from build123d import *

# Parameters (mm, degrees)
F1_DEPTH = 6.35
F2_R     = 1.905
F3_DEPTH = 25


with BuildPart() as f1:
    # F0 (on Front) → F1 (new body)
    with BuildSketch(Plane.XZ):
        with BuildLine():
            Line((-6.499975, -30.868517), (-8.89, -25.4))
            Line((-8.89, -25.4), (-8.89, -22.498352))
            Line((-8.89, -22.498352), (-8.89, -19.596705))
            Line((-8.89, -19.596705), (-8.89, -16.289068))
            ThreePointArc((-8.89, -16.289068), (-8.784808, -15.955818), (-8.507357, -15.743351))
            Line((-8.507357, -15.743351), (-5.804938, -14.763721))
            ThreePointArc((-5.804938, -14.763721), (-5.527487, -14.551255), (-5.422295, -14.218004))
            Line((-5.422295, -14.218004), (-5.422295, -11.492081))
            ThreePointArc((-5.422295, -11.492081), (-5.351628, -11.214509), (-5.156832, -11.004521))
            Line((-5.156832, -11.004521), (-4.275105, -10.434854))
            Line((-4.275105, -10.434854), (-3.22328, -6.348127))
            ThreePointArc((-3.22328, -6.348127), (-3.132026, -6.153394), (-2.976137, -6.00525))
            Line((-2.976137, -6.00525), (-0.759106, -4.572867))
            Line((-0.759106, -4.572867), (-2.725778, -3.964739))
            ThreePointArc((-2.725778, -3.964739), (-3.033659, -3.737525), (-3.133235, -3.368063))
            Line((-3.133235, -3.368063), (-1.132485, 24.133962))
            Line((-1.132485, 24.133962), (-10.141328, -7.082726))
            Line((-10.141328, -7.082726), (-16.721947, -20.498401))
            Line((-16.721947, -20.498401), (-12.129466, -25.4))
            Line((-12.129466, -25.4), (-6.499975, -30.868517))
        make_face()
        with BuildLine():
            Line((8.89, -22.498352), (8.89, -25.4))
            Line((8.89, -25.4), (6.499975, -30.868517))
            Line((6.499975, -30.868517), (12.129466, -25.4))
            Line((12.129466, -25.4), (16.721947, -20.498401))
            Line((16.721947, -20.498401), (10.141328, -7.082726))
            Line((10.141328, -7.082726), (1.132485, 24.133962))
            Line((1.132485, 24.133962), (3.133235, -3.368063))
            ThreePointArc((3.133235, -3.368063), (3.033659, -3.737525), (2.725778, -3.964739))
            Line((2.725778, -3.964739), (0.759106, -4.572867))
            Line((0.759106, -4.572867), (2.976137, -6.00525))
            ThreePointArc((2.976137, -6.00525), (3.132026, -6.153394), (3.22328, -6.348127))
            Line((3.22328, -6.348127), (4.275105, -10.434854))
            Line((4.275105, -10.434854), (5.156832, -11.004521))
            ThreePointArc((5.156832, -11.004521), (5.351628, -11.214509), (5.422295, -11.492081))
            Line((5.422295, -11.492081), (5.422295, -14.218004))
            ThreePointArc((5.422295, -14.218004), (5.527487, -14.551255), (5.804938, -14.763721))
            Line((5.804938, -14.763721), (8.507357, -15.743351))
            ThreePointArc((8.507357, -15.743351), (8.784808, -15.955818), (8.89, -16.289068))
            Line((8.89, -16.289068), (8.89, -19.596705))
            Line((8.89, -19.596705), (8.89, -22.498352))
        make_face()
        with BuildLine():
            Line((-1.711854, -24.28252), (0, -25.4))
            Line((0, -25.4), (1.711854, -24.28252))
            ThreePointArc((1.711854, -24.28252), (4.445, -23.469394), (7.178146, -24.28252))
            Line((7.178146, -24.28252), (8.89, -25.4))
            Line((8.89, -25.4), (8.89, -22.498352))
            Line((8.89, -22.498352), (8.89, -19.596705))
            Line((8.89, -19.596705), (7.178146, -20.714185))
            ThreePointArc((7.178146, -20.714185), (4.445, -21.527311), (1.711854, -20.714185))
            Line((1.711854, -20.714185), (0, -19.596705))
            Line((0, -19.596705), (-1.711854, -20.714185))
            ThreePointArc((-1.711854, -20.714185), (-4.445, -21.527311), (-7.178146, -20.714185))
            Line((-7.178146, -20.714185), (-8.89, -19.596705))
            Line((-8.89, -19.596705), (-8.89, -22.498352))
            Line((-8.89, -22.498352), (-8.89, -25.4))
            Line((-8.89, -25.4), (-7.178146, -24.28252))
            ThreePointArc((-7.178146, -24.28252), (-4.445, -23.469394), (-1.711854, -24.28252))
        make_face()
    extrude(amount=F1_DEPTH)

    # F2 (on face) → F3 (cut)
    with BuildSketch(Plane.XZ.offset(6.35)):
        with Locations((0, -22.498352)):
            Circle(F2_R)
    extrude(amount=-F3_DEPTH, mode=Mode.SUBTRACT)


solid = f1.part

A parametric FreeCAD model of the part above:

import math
import FreeCAD as App
import Part
import Sketcher

V = App.Vector
Q = App.Units.Quantity

doc = App.newDocument("Part")
body = doc.addObject("PartDesign::Body", "Body")

sketch1 = body.newObject("Sketcher::SketchObject", "Sketch")
sketch1.AttachmentSupport = (doc.getObject("XZ_Plane"), [""])
sketch1.MapMode = "FlatFace"
sketch1.addGeometry([
    Part.LineSegment(V(-6.499975, -30.868517, 0), V(-8.89, -25.4, 0)),
    Part.LineSegment(V(-8.89, -25.4, 0), V(-7.178146, -24.28252, 0)),
    Part.ArcOfCircle(Part.Circle(V(-4.445, -28.469395, 0), V(0, 0, 1), 5.000001), math.radians(56.863936), math.radians(123.136064)),
    Part.LineSegment(V(-1.711854, -24.28252, 0), V(0, -25.4, 0)),
    Part.LineSegment(V(0, -25.4, 0), V(1.711854, -24.28252, 0)),
    Part.ArcOfCircle(Part.Circle(V(4.445, -28.469395, 0), V(0, 0, 1), 5.000001), math.radians(56.863936), math.radians(123.136064)),
    Part.LineSegment(V(7.178146, -24.28252, 0), V(8.89, -25.4, 0)),
    Part.LineSegment(V(8.89, -25.4, 0), V(6.499975, -30.868517, 0)),
    Part.LineSegment(V(6.499975, -30.868517, 0), V(12.129466, -25.4, 0)),
    Part.LineSegment(V(12.129466, -25.4, 0), V(16.721947, -20.498401, 0)),
    Part.LineSegment(V(16.721947, -20.498401, 0), V(10.141328, -7.082726, 0)),
    Part.LineSegment(V(10.141328, -7.082726, 0), V(1.132485, 24.133962, 0)),
    Part.LineSegment(V(1.132485, 24.133962, 0), V(3.133235, -3.368063, 0)),
    Part.ArcOfCircle(Part.Circle(V(2.554299, -3.41018, 0), V(0, 0, 1), 0.580466), math.radians(-72.817515), math.radians(4.160885)),
    Part.LineSegment(V(2.725778, -3.964739, 0), V(0.759106, -4.572867, 0)),
    Part.LineSegment(V(0.759106, -4.572867, 0), V(2.976137, -6.00525, 0)),
    Part.ArcOfCircle(Part.Circle(V(2.661144, -6.492802, 0), V(0, 0, 1), 0.580455), math.radians(14.432812), math.radians(57.134712)),
    Part.LineSegment(V(3.22328, -6.348127, 0), V(4.275105, -10.434854, 0)),
    Part.LineSegment(V(4.275105, -10.434854, 0), V(5.156832, -11.004521, 0)),
    Part.ArcOfCircle(Part.Circle(V(4.841829, -11.49208, 0), V(0, 0, 1), 0.580466), math.radians(-0.000076), math.radians(57.134227)),
    Part.LineSegment(V(5.422295, -11.492081, 0), V(5.422295, -14.218004, 0)),
    Part.ArcOfCircle(Part.Circle(V(6.002758, -14.218006, 0), V(0, 0, 1), 0.580463), math.radians(179.999793), math.radians(250.074547)),
    Part.LineSegment(V(5.804938, -14.763721, 0), V(8.507357, -15.743351, 0)),
    Part.ArcOfCircle(Part.Circle(V(8.309534, -16.289068, 0), V(0, 0, 1), 0.580466), math.radians(-0.000028), math.radians(70.074368)),
    Part.LineSegment(V(8.89, -16.289068, 0), V(8.89, -19.596705, 0)),
    Part.LineSegment(V(8.89, -19.596705, 0), V(7.178146, -20.714185, 0)),
    Part.ArcOfCircle(Part.Circle(V(4.445, -16.52731, 0), V(0, 0, 1), 5.000001), math.radians(-123.136064), math.radians(-56.863936)),
    Part.LineSegment(V(1.711854, -20.714185, 0), V(0, -19.596705, 0)),
    Part.LineSegment(V(0, -19.596705, 0), V(-1.711854, -20.714185, 0)),
    Part.ArcOfCircle(Part.Circle(V(-4.445, -16.52731, 0), V(0, 0, 1), 5.000001), math.radians(-123.136064), math.radians(-56.863936)),
    Part.LineSegment(V(-7.178146, -20.714185, 0), V(-8.89, -19.596705, 0)),
    Part.LineSegment(V(-8.89, -19.596705, 0), V(-8.89, -16.289068, 0)),
    Part.ArcOfCircle(Part.Circle(V(-8.309534, -16.289068, 0), V(0, 0, 1), 0.580466), math.radians(109.925632), math.radians(180.000028)),
    Part.LineSegment(V(-8.507357, -15.743351, 0), V(-5.804938, -14.763721, 0)),
    Part.ArcOfCircle(Part.Circle(V(-6.002758, -14.218006, 0), V(0, 0, 1), 0.580463), math.radians(-70.074547), math.radians(0.000207)),
    Part.LineSegment(V(-5.422295, -14.218004, 0), V(-5.422295, -11.492081, 0)),
    Part.ArcOfCircle(Part.Circle(V(-4.841829, -11.49208, 0), V(0, 0, 1), 0.580466), math.radians(122.865773), math.radians(180.000076)),
    Part.LineSegment(V(-5.156832, -11.004521, 0), V(-4.275105, -10.434854, 0)),
    Part.LineSegment(V(-4.275105, -10.434854, 0), V(-3.22328, -6.348127, 0)),
    Part.ArcOfCircle(Part.Circle(V(-2.661144, -6.492802, 0), V(0, 0, 1), 0.580455), math.radians(122.865288), math.radians(165.567188)),
    Part.LineSegment(V(-2.976137, -6.00525, 0), V(-0.759106, -4.572867, 0)),
    Part.LineSegment(V(-0.759106, -4.572867, 0), V(-2.725778, -3.964739, 0)),
    Part.ArcOfCircle(Part.Circle(V(-2.554299, -3.41018, 0), V(0, 0, 1), 0.580466), math.radians(175.839115), math.radians(252.817515)),
    Part.LineSegment(V(-3.133235, -3.368063, 0), V(-1.132485, 24.133962, 0)),
    Part.LineSegment(V(-1.132485, 24.133962, 0), V(-10.141328, -7.082726, 0)),
    Part.LineSegment(V(-10.141328, -7.082726, 0), V(-16.721947, -20.498401, 0)),
    Part.LineSegment(V(-16.721947, -20.498401, 0), V(-12.129466, -25.4, 0)),
    Part.LineSegment(V(-12.129466, -25.4, 0), V(-6.499975, -30.868517, 0)),
], False)
sketch1.addConstraint([
    Sketcher.Constraint("Coincident", 0, 2, 1, 1),
    Sketcher.Constraint("Tangent", 1, 2, 2, 2),
    Sketcher.Constraint("Tangent", 2, 1, 3, 1),
    Sketcher.Constraint("Coincident", 3, 2, 4, 1),
    Sketcher.Constraint("Tangent", 4, 2, 5, 2),
    Sketcher.Constraint("Tangent", 5, 1, 6, 1),
    Sketcher.Constraint("Coincident", 6, 2, 7, 1),
    Sketcher.Constraint("Coincident", 7, 2, 8, 1),
    Sketcher.Constraint("Coincident", 8, 2, 9, 1),
    Sketcher.Constraint("Coincident", 9, 2, 10, 1),
    Sketcher.Constraint("Coincident", 10, 2, 11, 1),
    Sketcher.Constraint("Coincident", 11, 2, 12, 1),
    Sketcher.Constraint("Tangent", 12, 2, 13, 2),
    Sketcher.Constraint("Tangent", 13, 1, 14, 1),
    Sketcher.Constraint("Coincident", 14, 2, 15, 1),
    Sketcher.Constraint("Coincident", 15, 2, 16, 2),
    Sketcher.Constraint("Coincident", 16, 1, 17, 1),
    Sketcher.Constraint("Coincident", 17, 2, 18, 1),
    Sketcher.Constraint("Tangent", 18, 2, 19, 2),
    Sketcher.Constraint("Tangent", 19, 1, 20, 1),
    Sketcher.Constraint("Coincident", 20, 2, 21, 1),
    Sketcher.Constraint("Coincident", 21, 2, 22, 1),
    Sketcher.Constraint("Tangent", 22, 2, 23, 2),
    Sketcher.Constraint("Tangent", 23, 1, 24, 1),
    Sketcher.Constraint("Coincident", 24, 2, 25, 1),
    Sketcher.Constraint("Tangent", 25, 2, 26, 2),
    Sketcher.Constraint("Tangent", 26, 1, 27, 1),
    Sketcher.Constraint("Coincident", 27, 2, 28, 1),
    Sketcher.Constraint("Tangent", 28, 2, 29, 2),
    Sketcher.Constraint("Tangent", 29, 1, 30, 1),
    Sketcher.Constraint("Coincident", 30, 2, 31, 1),
    Sketcher.Constraint("Tangent", 31, 2, 32, 2),
    Sketcher.Constraint("Tangent", 32, 1, 33, 1),
    Sketcher.Constraint("Coincident", 33, 2, 34, 1),
    Sketcher.Constraint("Coincident", 34, 2, 35, 1),
    Sketcher.Constraint("Tangent", 35, 2, 36, 2),
    Sketcher.Constraint("Tangent", 36, 1, 37, 1),
    Sketcher.Constraint("Coincident", 37, 2, 38, 1),
    Sketcher.Constraint("Coincident", 38, 2, 39, 2),
    Sketcher.Constraint("Coincident", 39, 1, 40, 1),
    Sketcher.Constraint("Coincident", 40, 2, 41, 1),
    Sketcher.Constraint("Tangent", 41, 2, 42, 2),
    Sketcher.Constraint("Tangent", 42, 1, 43, 1),
    Sketcher.Constraint("Coincident", 43, 2, 44, 1),
    Sketcher.Constraint("Coincident", 44, 2, 45, 1),
    Sketcher.Constraint("Coincident", 45, 2, 46, 1),
    Sketcher.Constraint("Coincident", 46, 2, 47, 1),
    Sketcher.Constraint("Coincident", 47, 2, 0, 1),
    Sketcher.Constraint("Vertical", 20),
    Sketcher.Constraint("Vertical", 24),
    Sketcher.Constraint("Vertical", 31),
    Sketcher.Constraint("Vertical", 35),
    Sketcher.Constraint("Equal", 2, 5),
    Sketcher.Constraint("Equal", 13, 19),
    Sketcher.Constraint("Equal", 19, 23),
    Sketcher.Constraint("Equal", 5, 26),
    Sketcher.Constraint("Equal", 26, 29),
    Sketcher.Constraint("Equal", 23, 32),
    Sketcher.Constraint("Equal", 21, 34),
    Sketcher.Constraint("Equal", 32, 36),
    Sketcher.Constraint("Equal", 16, 39),
    Sketcher.Constraint("Equal", 36, 42),
    Sketcher.Constraint("Symmetric", 2, 3, 5, 3, -2),
    Sketcher.Constraint("Symmetric", 26, 3, 29, 3, -2),
    Sketcher.Constraint("Symmetric", 23, 3, 32, 3, -2),
    Sketcher.Constraint("Symmetric", 21, 3, 34, 3, -2),
    Sketcher.Constraint("Symmetric", 16, 3, 39, 3, -2),
    Sketcher.Constraint("Symmetric", 13, 3, 42, 3, -2),
    Sketcher.Constraint("Symmetric", 0, 2, 6, 2, -2),
    Sketcher.Constraint("Symmetric", 18, 2, 36, 1, -2),
    Sketcher.Constraint("Symmetric", 14, 2, 40, 2, -2),
    Sketcher.Constraint("Symmetric", 11, 2, 43, 2, -2),
    Sketcher.Constraint("Symmetric", 10, 2, 44, 2, -2),
    Sketcher.Constraint("Symmetric", 9, 2, 45, 2, -2),
    Sketcher.Constraint("Symmetric", 8, 2, 46, 2, -2),
    Sketcher.Constraint("Symmetric", 7, 2, 47, 2, -2),
    Sketcher.Constraint("PointOnObject", 3, 2, -2),
    Sketcher.Constraint("PointOnObject", 27, 2, -2),
    Sketcher.Constraint("Parallel", 1, 4),
    Sketcher.Constraint("Parallel", 15, 18),
    Sketcher.Constraint("Parallel", 4, 25),
    Sketcher.Constraint("Parallel", 6, 27),
    Sketcher.Constraint("Parallel", 27, 30),
    Sketcher.Constraint("Horizontal", 0, 2, 3, 2),
    Sketcher.Constraint("Horizontal", 6, 2, 8, 2),
    Sketcher.Constraint("Horizontal", 24, 2, 27, 2),
    Sketcher.Constraint("Horizontal", 21, 2, 33, 2),
    Sketcher.Constraint("Horizontal", 20, 2, 34, 2),
    Sketcher.Constraint("Horizontal", 17, 2, 37, 2),
    Sketcher.Constraint("Horizontal", 16, 1, 38, 2),
    Sketcher.Constraint("Horizontal", 15, 2, 39, 1),
    Sketcher.Constraint("Vertical", 5, 3, 26, 3),
    Sketcher.Constraint("Radius", 2, Q("5.000001 mm")),
    Sketcher.Constraint("DistanceY", 0, 2, -1, 1, Q("25.4 mm")),
    Sketcher.Constraint("DistanceX", 0, 2, -1, 1, Q("8.89 mm")),
    Sketcher.Constraint("Radius", 13, Q("0.580466 mm")),
    Sketcher.Constraint("Radius", 16, Q("0.580455 mm")),
    Sketcher.Constraint("Radius", 21, Q("0.580463 mm")),
    Sketcher.Constraint("Distance", 22, Q("2.874499 mm")),
    Sketcher.Constraint("DistanceX", -1, 1, 13, 3, Q("2.554299 mm")),
    Sketcher.Constraint("DistanceY", 9, 2, -1, 1, Q("20.498401 mm")),
    Sketcher.Constraint("Distance", 0, Q("5.967989 mm")),
    Sketcher.Constraint("Distance", 1, Q("2.044311 mm")),
    Sketcher.Constraint("Distance", 10, Q("14.94272 mm")),
    Sketcher.Constraint("DistanceY", 20, 2, 20, 1, Q("2.725923 mm")),
    Sketcher.Constraint("DistanceY", 24, 2, 24, 1, Q("3.307637 mm")),
    Sketcher.Constraint("DistanceY", 13, 3, -1, 1, Q("3.41018 mm")),
    Sketcher.Constraint("DistanceX", -1, 1, 19, 3, Q("4.841829 mm")),
    Sketcher.Constraint("DistanceY", 19, 3, -1, 1, Q("11.49208 mm")),
    Sketcher.Constraint("DistanceY", 26, 3, -1, 1, Q("16.52731 mm")),
    Sketcher.Constraint("DistanceX", -1, 1, 13, 1, Q("2.725778 mm")),
    Sketcher.Constraint("DistanceY", 15, 2, -1, 1, Q("6.00525 mm")),
    Sketcher.Constraint("DistanceX", -1, 1, 16, 1, Q("3.22328 mm")),
    Sketcher.Constraint("DistanceX", -1, 1, 18, 2, Q("5.156832 mm")),
    Sketcher.Constraint("DistanceY", 21, 2, -1, 1, Q("14.763721 mm")),
    Sketcher.Constraint("Distance", 8, Q("7.848302 mm")),
    Sketcher.Constraint("Distance", 9, Q("6.716886 mm")),
    Sketcher.Constraint("Distance", 11, Q("32.490627 mm")),
    Sketcher.Constraint("Distance", 12, Q("27.574705 mm")),
    Sketcher.Constraint("Distance", 14, Q("2.058548 mm")),
    Sketcher.Constraint("Distance", 17, Q("4.219914 mm")),
    Sketcher.Constraint("Distance", 18, Q("1.049744 mm")),
    Sketcher.Constraint("DistanceX", -1, 1, 7, 2, Q("6.499975 mm")),
    Sketcher.Constraint("DistanceX", -1, 1, 10, 2, Q("10.141328 mm")),
])
pad1 = body.newObject("PartDesign::Pad", "Pad")
pad1.Profile = sketch1
pad1.Length = 6.35

sketch2 = body.newObject("Sketcher::SketchObject", "Sketch001")
sketch2.AttachmentSupport = (doc.getObject("XZ_Plane"), [""])
sketch2.MapMode = "FlatFace"
sketch2.AttachmentOffset = App.Placement(V(0, 0, 6.35), App.Rotation())
sketch2.addGeometry(Part.Circle(V(0, -22.498352, 0), V(0, 0, 1), 1.905), False)
sketch2.addConstraint([
    Sketcher.Constraint("PointOnObject", 0, 3, -2),
    Sketcher.Constraint("Diameter", 0, Q("3.81 mm")),
    Sketcher.Constraint("DistanceY", 0, 3, -1, 1, Q("22.498352 mm")),
])
pocket1 = body.newObject("PartDesign::Pocket", "Pocket")
pocket1.Profile = sketch2
pocket1.Length = 25

doc.recompute()
